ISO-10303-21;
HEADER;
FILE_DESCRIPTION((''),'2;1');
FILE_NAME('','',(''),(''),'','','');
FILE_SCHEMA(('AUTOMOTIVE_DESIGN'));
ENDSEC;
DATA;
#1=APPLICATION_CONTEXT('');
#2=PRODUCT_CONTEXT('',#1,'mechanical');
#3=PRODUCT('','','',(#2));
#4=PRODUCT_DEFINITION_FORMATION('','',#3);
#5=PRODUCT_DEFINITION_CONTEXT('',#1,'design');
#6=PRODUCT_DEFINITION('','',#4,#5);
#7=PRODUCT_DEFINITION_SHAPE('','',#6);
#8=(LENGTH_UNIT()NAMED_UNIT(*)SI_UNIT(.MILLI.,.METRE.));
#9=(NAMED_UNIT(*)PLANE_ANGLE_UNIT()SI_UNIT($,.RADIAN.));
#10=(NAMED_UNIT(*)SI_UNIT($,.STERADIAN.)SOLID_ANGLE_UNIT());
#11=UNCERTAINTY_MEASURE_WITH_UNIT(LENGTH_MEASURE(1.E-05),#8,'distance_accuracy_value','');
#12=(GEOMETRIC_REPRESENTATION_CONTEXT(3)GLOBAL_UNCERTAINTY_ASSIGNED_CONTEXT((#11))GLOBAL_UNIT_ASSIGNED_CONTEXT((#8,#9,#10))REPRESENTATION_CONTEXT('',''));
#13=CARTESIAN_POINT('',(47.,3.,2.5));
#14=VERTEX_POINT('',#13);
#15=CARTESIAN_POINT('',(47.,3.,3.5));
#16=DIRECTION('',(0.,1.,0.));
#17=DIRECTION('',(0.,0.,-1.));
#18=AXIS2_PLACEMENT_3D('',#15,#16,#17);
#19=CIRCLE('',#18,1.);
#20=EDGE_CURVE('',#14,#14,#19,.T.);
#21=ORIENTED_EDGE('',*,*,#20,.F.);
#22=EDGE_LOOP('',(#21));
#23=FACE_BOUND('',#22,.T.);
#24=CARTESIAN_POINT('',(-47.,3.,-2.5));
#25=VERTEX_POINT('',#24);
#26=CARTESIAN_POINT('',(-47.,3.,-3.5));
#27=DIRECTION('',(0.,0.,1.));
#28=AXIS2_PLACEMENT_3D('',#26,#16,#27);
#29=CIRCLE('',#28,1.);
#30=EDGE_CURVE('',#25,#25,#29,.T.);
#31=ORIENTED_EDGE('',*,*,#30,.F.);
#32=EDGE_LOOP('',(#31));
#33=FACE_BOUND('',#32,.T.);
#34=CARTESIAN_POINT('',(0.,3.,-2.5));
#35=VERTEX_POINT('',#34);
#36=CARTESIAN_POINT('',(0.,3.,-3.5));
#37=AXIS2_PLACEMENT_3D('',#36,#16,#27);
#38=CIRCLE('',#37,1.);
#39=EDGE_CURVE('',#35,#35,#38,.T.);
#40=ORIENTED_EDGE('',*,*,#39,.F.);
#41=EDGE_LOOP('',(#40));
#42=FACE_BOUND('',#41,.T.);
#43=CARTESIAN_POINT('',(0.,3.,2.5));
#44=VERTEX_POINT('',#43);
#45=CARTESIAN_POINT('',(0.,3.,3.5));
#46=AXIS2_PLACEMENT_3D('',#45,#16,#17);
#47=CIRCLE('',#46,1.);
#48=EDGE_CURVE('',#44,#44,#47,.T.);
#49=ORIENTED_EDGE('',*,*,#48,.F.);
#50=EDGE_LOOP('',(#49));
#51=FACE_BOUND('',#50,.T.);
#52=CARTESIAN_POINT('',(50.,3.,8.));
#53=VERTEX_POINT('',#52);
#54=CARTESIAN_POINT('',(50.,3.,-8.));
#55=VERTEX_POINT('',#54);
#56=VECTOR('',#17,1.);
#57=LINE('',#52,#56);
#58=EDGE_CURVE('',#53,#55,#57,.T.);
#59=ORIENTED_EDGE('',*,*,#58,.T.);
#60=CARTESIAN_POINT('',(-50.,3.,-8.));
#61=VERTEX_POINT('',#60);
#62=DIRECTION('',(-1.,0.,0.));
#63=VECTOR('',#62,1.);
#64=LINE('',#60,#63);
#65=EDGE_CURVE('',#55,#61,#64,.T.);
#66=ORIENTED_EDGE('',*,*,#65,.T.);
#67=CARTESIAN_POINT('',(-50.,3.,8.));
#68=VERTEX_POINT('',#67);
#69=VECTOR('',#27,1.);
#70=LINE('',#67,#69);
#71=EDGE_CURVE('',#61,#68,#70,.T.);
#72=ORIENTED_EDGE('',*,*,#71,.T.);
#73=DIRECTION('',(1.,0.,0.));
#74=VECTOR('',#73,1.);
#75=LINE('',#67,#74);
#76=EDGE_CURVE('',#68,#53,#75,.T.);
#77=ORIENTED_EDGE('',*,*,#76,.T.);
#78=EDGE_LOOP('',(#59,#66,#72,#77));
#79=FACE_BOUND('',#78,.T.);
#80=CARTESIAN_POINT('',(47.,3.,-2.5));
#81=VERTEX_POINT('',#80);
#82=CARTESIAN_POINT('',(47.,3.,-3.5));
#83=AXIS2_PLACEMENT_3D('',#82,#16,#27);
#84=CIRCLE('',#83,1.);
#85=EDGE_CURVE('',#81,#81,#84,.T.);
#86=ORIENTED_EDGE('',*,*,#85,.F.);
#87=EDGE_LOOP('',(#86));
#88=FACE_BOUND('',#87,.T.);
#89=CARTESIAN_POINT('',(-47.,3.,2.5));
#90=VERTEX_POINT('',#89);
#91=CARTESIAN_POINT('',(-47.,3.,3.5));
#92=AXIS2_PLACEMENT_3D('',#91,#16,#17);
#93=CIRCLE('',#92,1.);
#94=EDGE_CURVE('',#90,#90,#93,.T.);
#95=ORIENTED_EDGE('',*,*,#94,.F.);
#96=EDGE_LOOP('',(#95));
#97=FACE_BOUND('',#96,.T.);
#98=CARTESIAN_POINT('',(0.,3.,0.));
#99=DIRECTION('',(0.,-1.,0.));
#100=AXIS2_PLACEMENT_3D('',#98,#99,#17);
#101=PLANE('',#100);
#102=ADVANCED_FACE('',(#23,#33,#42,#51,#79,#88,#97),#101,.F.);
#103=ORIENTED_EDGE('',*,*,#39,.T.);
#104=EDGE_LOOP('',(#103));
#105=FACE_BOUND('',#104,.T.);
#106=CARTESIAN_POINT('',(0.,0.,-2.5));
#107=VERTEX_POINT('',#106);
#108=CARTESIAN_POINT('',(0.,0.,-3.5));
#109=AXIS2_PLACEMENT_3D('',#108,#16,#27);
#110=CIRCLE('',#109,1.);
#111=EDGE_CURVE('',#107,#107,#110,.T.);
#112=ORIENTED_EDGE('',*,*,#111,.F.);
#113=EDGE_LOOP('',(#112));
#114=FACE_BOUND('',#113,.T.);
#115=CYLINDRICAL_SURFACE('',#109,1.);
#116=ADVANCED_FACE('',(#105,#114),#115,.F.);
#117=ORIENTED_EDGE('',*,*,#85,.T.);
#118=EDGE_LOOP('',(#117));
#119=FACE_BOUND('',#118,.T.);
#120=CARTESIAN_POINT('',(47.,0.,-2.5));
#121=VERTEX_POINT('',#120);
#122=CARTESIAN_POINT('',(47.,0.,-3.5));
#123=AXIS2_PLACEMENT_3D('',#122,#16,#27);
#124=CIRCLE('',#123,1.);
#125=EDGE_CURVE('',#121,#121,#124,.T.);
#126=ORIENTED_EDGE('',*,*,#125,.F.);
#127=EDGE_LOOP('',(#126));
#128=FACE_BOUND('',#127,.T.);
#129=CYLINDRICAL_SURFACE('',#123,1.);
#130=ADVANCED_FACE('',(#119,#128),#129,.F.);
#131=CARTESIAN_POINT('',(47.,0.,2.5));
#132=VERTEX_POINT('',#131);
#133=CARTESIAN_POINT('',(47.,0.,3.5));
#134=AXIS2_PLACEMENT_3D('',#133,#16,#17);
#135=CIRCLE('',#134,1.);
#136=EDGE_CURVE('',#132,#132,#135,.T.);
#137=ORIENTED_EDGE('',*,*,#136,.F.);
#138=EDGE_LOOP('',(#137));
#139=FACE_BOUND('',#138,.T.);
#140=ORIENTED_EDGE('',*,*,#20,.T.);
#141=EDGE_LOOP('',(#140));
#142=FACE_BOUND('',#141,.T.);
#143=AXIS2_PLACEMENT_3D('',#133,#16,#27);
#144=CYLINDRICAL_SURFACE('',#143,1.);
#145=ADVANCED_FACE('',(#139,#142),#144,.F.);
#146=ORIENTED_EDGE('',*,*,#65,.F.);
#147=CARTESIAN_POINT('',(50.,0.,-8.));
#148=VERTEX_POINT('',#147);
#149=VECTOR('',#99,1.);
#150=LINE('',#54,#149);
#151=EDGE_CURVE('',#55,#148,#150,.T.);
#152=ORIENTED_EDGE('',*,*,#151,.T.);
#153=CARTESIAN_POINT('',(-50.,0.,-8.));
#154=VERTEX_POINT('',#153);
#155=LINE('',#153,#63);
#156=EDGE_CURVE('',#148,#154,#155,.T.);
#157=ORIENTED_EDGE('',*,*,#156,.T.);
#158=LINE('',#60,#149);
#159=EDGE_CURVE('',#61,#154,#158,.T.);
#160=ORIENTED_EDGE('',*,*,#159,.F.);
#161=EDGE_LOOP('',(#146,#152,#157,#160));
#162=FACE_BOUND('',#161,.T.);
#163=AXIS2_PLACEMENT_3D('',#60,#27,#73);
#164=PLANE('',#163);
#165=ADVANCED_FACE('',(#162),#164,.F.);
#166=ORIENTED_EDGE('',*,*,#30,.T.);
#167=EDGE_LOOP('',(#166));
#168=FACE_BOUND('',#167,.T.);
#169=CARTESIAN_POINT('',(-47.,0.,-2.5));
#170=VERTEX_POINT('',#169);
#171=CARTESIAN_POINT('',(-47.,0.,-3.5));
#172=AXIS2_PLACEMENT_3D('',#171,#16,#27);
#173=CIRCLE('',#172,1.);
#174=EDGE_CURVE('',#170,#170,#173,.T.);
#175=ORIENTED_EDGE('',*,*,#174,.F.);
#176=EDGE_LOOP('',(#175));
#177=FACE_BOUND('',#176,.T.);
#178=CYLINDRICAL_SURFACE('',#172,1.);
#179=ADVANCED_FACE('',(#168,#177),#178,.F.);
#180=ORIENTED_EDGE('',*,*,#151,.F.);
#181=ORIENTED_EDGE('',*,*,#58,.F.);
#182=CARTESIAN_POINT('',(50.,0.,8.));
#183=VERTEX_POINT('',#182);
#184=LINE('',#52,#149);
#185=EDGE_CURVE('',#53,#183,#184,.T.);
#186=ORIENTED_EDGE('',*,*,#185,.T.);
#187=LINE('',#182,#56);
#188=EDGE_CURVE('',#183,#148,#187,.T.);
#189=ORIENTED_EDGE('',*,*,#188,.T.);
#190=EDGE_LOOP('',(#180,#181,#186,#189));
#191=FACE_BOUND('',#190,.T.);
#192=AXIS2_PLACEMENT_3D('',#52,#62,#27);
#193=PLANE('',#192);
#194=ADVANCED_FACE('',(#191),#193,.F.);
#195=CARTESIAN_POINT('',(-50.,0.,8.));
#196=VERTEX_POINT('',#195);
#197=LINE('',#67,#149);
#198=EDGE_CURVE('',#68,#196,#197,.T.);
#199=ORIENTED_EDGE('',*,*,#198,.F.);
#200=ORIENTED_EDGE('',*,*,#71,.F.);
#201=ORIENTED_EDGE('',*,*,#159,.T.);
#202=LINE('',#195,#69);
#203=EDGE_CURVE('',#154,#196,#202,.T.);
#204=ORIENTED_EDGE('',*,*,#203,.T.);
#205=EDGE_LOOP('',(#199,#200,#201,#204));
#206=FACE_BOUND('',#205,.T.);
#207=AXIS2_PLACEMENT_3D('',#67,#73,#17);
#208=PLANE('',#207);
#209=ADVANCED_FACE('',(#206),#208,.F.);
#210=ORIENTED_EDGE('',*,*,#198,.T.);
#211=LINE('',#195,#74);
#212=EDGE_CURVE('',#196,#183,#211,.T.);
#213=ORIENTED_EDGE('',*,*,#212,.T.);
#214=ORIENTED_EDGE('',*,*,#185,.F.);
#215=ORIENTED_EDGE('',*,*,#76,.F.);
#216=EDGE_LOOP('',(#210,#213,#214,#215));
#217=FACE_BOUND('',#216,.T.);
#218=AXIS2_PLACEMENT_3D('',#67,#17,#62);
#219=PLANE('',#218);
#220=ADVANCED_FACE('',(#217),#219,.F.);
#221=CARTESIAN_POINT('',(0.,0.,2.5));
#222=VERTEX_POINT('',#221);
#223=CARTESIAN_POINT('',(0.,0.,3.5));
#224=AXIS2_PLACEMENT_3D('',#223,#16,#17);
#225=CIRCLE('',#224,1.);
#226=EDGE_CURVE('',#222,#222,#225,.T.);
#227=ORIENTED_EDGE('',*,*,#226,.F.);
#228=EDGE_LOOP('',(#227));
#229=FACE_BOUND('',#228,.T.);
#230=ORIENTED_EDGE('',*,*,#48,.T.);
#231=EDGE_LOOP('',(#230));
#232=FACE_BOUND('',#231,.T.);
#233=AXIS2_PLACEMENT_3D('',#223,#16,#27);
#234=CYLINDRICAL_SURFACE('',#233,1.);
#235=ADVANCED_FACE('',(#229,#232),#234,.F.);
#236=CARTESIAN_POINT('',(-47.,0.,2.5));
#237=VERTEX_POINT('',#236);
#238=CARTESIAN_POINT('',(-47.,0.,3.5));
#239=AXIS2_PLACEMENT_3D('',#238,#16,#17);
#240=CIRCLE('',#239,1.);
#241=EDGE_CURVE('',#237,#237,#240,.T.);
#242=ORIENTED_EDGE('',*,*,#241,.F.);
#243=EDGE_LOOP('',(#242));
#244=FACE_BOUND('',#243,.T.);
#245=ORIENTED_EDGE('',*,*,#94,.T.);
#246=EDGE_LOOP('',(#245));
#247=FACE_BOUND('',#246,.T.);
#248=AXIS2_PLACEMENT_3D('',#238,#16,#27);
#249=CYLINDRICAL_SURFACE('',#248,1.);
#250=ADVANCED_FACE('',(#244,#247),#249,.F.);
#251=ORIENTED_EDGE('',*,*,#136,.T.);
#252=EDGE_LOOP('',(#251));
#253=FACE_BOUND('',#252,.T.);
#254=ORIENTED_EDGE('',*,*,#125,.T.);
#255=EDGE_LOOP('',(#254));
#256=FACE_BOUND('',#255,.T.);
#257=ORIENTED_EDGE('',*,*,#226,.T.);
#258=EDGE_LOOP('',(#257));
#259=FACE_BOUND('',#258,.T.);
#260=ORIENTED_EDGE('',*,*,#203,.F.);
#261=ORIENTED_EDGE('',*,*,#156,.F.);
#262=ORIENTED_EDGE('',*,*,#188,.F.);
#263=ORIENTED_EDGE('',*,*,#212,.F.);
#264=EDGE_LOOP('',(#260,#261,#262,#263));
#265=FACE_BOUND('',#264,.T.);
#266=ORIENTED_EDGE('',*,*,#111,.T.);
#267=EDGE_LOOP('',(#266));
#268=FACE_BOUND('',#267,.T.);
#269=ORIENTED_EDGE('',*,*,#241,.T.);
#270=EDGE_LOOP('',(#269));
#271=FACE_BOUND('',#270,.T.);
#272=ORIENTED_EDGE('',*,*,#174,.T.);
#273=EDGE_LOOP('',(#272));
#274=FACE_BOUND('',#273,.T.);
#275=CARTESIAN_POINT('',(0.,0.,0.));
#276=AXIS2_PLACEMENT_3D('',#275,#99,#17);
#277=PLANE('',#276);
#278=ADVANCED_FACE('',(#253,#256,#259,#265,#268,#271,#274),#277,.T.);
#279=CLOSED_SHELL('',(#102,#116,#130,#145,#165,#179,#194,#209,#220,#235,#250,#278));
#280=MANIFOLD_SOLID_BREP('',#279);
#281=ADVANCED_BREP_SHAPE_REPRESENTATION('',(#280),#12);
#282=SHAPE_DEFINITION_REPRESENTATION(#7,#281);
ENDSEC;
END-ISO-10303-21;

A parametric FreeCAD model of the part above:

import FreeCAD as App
import Part
import Sketcher
Q = App.Units.Quantity


def add_polygon(sketch, points):
    """Adds a closed chain of lines whose ends are joined by coincident constraints."""
    first, n = sketch.GeometryCount, len(points)
    for a, b in zip(points, points[1:] + points[:1]):
        sketch.addGeometry(Part.LineSegment(App.Vector(*a, 0), App.Vector(*b, 0)), False)
    for i in range(n):
        sketch.addConstraint(Sketcher.Constraint("Coincident", first + i, 2, first + (i + 1) % n, 1))

doc = App.newDocument("Part")
params = doc.addObject("Spreadsheet::Sheet", "Params")
for row, (alias, value) in enumerate([
    ("sketch1_width", "100 mm"),
    ("sketch1_height", "16 mm"),
    ("pad1_length", "3 mm"),
    ("sketch2_diameter", "2 mm"),
    ("pocket1_length", "3 mm"),
], start=1):
    params.set(f"A{row}", alias)
    params.set(f"B{row}", "=" + value)
    params.setAlias(f"B{row}", alias)

body = doc.addObject("PartDesign::Body", "Body")

# Sketch on XZ plane
sketch1 = doc.addObject("Sketcher::SketchObject", "Sketch")
body.addObject(sketch1)
sketch1.AttachmentSupport = (doc.XZ_Plane, [""])
sketch1.MapMode = "FlatFace"
add_polygon(sketch1, [(-50, -8), (-50, 8), (50, 8), (50, -8)])  # lines 0-3
sketch1.addConstraint([
    Sketcher.Constraint("Vertical", 0),
    Sketcher.Constraint("Horizontal", 1),
    Sketcher.Constraint("Vertical", 2),
    Sketcher.Constraint("Horizontal", 3),
    Sketcher.Constraint("Symmetric", 0, 2, 2, 2, -1, 1),
    Sketcher.Constraint("DistanceX", 1, 1, 1, 2, Q("100 mm")),
    Sketcher.Constraint("DistanceY", 0, 1, 0, 2, Q("16 mm")),
])
sketch1.setExpression("Constraints[9]", "Params.sketch1_width")
sketch1.setExpression("Constraints[10]", "Params.sketch1_height")
pad1 = doc.addObject("PartDesign::Pad", "Pad")
body.addObject(pad1)
pad1.Profile = sketch1
pad1.setExpression("Length", "Params.pad1_length")
pad1.Reversed = True

# Sketch on XZ plane
sketch2 = doc.addObject("Sketcher::SketchObject", "Sketch001")
body.addObject(sketch2)
sketch2.AttachmentSupport = (doc.XZ_Plane, [""])
sketch2.MapMode = "FlatFace"
sketch2.AttachmentOffset = App.Placement(App.Vector(0, 0, -3), App.Rotation())
sketch2.addGeometry([
    Part.Circle(App.Vector(47, -3.5, 0), App.Vector(0, 0, 1), 1),  # 0
    Part.Circle(App.Vector(0, -3.5, 0), App.Vector(0, 0, 1), 1),  # 1
    Part.Circle(App.Vector(-47, -3.5, 0), App.Vector(0, 0, 1), 1),  # 2
    Part.Circle(App.Vector(47, 3.5, 0), App.Vector(0, 0, 1), 1),  # 3
    Part.Circle(App.Vector(0, 3.5, 0), App.Vector(0, 0, 1), 1),  # 4
    Part.Circle(App.Vector(-47, 3.5, 0), App.Vector(0, 0, 1), 1),  # 5
], False)
sketch2.addConstraint([
    Sketcher.Constraint("Equal", 0, 1),
    Sketcher.Constraint("Equal", 1, 2),
    Sketcher.Constraint("Equal", 2, 3),
    Sketcher.Constraint("Equal", 3, 4),
    Sketcher.Constraint("Equal", 4, 5),
    Sketcher.Constraint("Symmetric", 2, 3, 3, 3, -1, 1),
    Sketcher.Constraint("Symmetric", 1, 3, 4, 3, -1, 1),
    Sketcher.Constraint("Symmetric", 0, 3, 5, 3, -1, 1),
    Sketcher.Constraint("Symmetric", 0, 3, 2, 3, -2),
    Sketcher.Constraint("PointOnObject", 1, 3, -2),
    Sketcher.Constraint("Horizontal", 0, 3, 1, 3),
    Sketcher.Constraint("Diameter", 0, Q("2 mm")),
    Sketcher.Constraint("DistanceX", -1, 1, 0, 3, Q("47 mm")),
    Sketcher.Constraint("DistanceY", 0, 3, 3, 3, Q("7 mm")),
])
sketch2.setExpression("Constraints[11]", "Params.sketch2_diameter")
pocket1 = doc.addObject("PartDesign::Pocket", "Pocket")
body.addObject(pocket1)
pocket1.Profile = sketch2
pocket1.setExpression("Length", "Params.pocket1_length")
pocket1.Reversed = True

doc.recompute()
